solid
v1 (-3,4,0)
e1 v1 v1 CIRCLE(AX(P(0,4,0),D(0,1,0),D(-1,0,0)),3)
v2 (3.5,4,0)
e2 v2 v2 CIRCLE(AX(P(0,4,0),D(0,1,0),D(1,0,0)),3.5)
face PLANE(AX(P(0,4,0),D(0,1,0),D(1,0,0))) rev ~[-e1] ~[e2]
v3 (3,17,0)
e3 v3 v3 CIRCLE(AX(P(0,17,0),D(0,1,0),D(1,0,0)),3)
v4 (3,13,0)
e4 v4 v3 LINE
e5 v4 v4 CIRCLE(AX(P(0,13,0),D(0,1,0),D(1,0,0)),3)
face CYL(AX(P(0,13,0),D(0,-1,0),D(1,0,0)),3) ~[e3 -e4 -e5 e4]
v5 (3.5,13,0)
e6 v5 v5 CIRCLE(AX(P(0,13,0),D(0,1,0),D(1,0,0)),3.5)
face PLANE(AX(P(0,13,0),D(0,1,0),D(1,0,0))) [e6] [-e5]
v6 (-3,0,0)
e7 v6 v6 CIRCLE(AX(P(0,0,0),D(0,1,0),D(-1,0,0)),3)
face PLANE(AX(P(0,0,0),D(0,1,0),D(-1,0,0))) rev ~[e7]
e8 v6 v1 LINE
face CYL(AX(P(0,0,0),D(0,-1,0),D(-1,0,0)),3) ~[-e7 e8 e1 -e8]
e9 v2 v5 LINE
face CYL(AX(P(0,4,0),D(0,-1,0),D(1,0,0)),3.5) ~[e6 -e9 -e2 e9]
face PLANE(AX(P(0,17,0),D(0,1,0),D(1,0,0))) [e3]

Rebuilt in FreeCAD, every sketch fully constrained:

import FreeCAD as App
import Part
import Sketcher

doc = App.newDocument("Part")
body = doc.addObject("PartDesign::Body", "Body")

sketch1 = body.newObject("Sketcher::SketchObject", "Sketch")
sketch1.AttachmentSupport = (doc.getObject("XZ_Plane"), [""])
sketch1.MapMode = "FlatFace"
sketch1.addGeometry(Part.Circle(App.Vector(0, 0, 0), App.Vector(0, 0, 1), 3), False)
sketch1.addConstraint(Sketcher.Constraint("Coincident", 0, 3, -1, 1))
sketch1.addConstraint(Sketcher.Constraint("Diameter", 0, 6.0))
pad1 = body.newObject("PartDesign::Pad", "Pad")
pad1.Profile = sketch1
pad1.Length = 4
pad1.Reversed = True

sketch2 = body.newObject("Sketcher::SketchObject", "Sketch001")
sketch2.AttachmentSupport = (doc.getObject("XZ_Plane"), [""])
sketch2.MapMode = "FlatFace"
sketch2.AttachmentOffset = App.Placement(App.Vector(0, 0, -4), App.Rotation())
sketch2.addGeometry(Part.Circle(App.Vector(0, 0, 0), App.Vector(0, 0, 1), 3.5), False)
sketch2.addConstraint(Sketcher.Constraint("Coincident", 0, 3, -1, 1))
sketch2.addConstraint(Sketcher.Constraint("Diameter", 0, 7.0))
pad2 = body.newObject("PartDesign::Pad", "Pad001")
pad2.Profile = sketch2
pad2.Length = 9
pad2.Reversed = True

sketch3 = body.newObject("Sketcher::SketchObject", "Sketch002")
sketch3.AttachmentSupport = (doc.getObject("XZ_Plane"), [""])
sketch3.MapMode = "FlatFace"
sketch3.AttachmentOffset = App.Placement(App.Vector(0, 0, -13), App.Rotation())
sketch3.addGeometry(Part.Circle(App.Vector(0, 0, 0), App.Vector(0, 0, 1), 3), False)
sketch3.addConstraint(Sketcher.Constraint("Coincident", 0, 3, -1, 1))
sketch3.addConstraint(Sketcher.Constraint("Diameter", 0, 6.0))
pad3 = body.newObject("PartDesign::Pad", "Pad002")
pad3.Profile = sketch3
pad3.Length = 4
pad3.Reversed = True

doc.recompute()
